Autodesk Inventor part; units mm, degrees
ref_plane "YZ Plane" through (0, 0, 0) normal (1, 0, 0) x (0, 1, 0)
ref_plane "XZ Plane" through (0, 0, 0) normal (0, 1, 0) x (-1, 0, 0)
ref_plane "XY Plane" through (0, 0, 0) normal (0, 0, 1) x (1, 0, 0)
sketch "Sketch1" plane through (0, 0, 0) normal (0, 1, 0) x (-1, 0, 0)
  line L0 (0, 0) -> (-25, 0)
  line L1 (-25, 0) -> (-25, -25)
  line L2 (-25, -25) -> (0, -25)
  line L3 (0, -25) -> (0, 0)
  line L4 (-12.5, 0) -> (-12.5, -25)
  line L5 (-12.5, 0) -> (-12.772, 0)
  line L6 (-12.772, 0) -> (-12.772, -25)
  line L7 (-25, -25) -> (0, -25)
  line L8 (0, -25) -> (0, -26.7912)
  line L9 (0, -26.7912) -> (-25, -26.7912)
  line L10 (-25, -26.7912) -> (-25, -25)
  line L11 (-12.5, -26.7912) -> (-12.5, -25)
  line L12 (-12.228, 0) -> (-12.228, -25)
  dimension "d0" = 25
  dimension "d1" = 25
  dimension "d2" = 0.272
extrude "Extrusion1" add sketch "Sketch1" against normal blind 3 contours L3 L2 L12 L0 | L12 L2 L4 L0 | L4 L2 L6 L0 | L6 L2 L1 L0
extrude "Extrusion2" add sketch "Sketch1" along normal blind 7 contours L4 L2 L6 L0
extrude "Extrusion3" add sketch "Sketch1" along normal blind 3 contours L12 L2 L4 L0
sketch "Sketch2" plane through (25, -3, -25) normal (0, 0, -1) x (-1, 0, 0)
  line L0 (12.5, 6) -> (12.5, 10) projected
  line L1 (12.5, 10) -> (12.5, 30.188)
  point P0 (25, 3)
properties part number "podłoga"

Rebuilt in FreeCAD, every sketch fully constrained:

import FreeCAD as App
import Part
import Sketcher
Q = App.Units.Quantity

doc = App.newDocument("Part")
body = doc.addObject("PartDesign::Body", "Body")

sketch1 = body.newObject("Sketcher::SketchObject", "Sketch")
sketch1.AttachmentSupport = (doc.getObject("XZ_Plane"), [""])
sketch1.MapMode = "FlatFace"
sketch1.addGeometry(Part.LineSegment(App.Vector(0, -25, 0), App.Vector(0, 0, 0)), False)
sketch1.addGeometry(Part.LineSegment(App.Vector(0, 0, 0), App.Vector(25, 0, 0)), False)
sketch1.addGeometry(Part.LineSegment(App.Vector(25, 0, 0), App.Vector(25, -25, 0)), False)
sketch1.addGeometry(Part.LineSegment(App.Vector(25, -25, 0), App.Vector(0, -25, 0)), False)
sketch1.addConstraint(Sketcher.Constraint("Coincident", 0, 2, 1, 1))
sketch1.addConstraint(Sketcher.Constraint("Coincident", 1, 2, 2, 1))
sketch1.addConstraint(Sketcher.Constraint("Coincident", 2, 2, 3, 1))
sketch1.addConstraint(Sketcher.Constraint("Coincident", 3, 2, 0, 1))
sketch1.addConstraint(Sketcher.Constraint("Vertical", 0))
sketch1.addConstraint(Sketcher.Constraint("Horizontal", 1))
sketch1.addConstraint(Sketcher.Constraint("Vertical", 2))
sketch1.addConstraint(Sketcher.Constraint("Horizontal", 3))
sketch1.addConstraint(Sketcher.Constraint("Coincident", 0, 2, -1, 1))
sketch1.addConstraint(Sketcher.Constraint("Equal", 3, 0))
sketch1.addConstraint(Sketcher.Constraint("DistanceX", 1, 1, 1, 2, Q("25 mm")))
pad1 = body.newObject("PartDesign::Pad", "Pad")
pad1.Profile = sketch1
pad1.Length = 3

sketch2 = body.newObject("Sketcher::SketchObject", "Sketch001")
sketch2.AttachmentSupport = (doc.getObject("XZ_Plane"), [""])
sketch2.MapMode = "FlatFace"
sketch2.addGeometry(Part.LineSegment(App.Vector(12.5, -25, 0), App.Vector(12.5, 0, 0)), False)
sketch2.addGeometry(Part.LineSegment(App.Vector(12.5, 0, 0), App.Vector(12.77, 0, 0)), False)
sketch2.addGeometry(Part.LineSegment(App.Vector(12.77, 0, 0), App.Vector(12.77, -25, 0)), False)
sketch2.addGeometry(Part.LineSegment(App.Vector(12.77, -25, 0), App.Vector(12.5, -25, 0)), False)
sketch2.addConstraint(Sketcher.Constraint("Coincident", 0, 2, 1, 1))
sketch2.addConstraint(Sketcher.Constraint("Coincident", 1, 2, 2, 1))
sketch2.addConstraint(Sketcher.Constraint("Coincident", 2, 2, 3, 1))
sketch2.addConstraint(Sketcher.Constraint("Coincident", 3, 2, 0, 1))
sketch2.addConstraint(Sketcher.Constraint("Vertical", 0))
sketch2.addConstraint(Sketcher.Constraint("Horizontal", 1))
sketch2.addConstraint(Sketcher.Constraint("Vertical", 2))
sketch2.addConstraint(Sketcher.Constraint("Horizontal", 3))
sketch2.addConstraint(Sketcher.Constraint("PointOnObject", 0, 2, -1))
sketch2.addConstraint(Sketcher.Constraint("DistanceY", 0, 1, 0, 2, Q("25 mm")))
sketch2.addConstraint(Sketcher.Constraint("DistanceX", 1, 1, 1, 2, Q("0.272 mm")))
sketch2.addConstraint(Sketcher.Constraint("DistanceX", -1, 1, 0, 2, Q("12.5 mm")))
pad2 = body.newObject("PartDesign::Pad", "Pad001")
pad2.Profile = sketch2
pad2.Length = 7
pad2.Reversed = True

sketch3 = body.newObject("Sketcher::SketchObject", "Sketch002")
sketch3.AttachmentSupport = (doc.getObject("XZ_Plane"), [""])
sketch3.MapMode = "FlatFace"
sketch3.addGeometry(Part.LineSegment(App.Vector(12.23, -25, 0), App.Vector(12.23, 0, 0)), False)
sketch3.addGeometry(Part.LineSegment(App.Vector(12.23, 0, 0), App.Vector(12.5, 0, 0)), False)
sketch3.addGeometry(Part.LineSegment(App.Vector(12.5, 0, 0), App.Vector(12.5, -25, 0)), False)
sketch3.addGeometry(Part.LineSegment(App.Vector(12.5, -25, 0), App.Vector(12.23, -25, 0)), False)
sketch3.addConstraint(Sketcher.Constraint("Coincident", 0, 2, 1, 1))
sketch3.addConstraint(Sketcher.Constraint("Coincident", 1, 2, 2, 1))
sketch3.addConstraint(Sketcher.Constraint("Coincident", 2, 2, 3, 1))
sketch3.addConstraint(Sketcher.Constraint("Coincident", 3, 2, 0, 1))
sketch3.addConstraint(Sketcher.Constraint("Vertical", 0))
sketch3.addConstraint(Sketcher.Constraint("Horizontal", 1))
sketch3.addConstraint(Sketcher.Constraint("Vertical", 2))
sketch3.addConstraint(Sketcher.Constraint("Horizontal", 3))
sketch3.addConstraint(Sketcher.Constraint("PointOnObject", 0, 2, -1))
sketch3.addConstraint(Sketcher.Constraint("DistanceY", 0, 1, 0, 2, Q("25 mm")))
sketch3.addConstraint(Sketcher.Constraint("DistanceX", 1, 1, 1, 2, Q("0.272 mm")))
sketch3.addConstraint(Sketcher.Constraint("DistanceX", -1, 1, 1, 2, Q("12.5 mm")))
pad3 = body.newObject("PartDesign::Pad", "Pad002")
pad3.Profile = sketch3
pad3.Length = 3
pad3.Reversed = True

doc.recompute()
